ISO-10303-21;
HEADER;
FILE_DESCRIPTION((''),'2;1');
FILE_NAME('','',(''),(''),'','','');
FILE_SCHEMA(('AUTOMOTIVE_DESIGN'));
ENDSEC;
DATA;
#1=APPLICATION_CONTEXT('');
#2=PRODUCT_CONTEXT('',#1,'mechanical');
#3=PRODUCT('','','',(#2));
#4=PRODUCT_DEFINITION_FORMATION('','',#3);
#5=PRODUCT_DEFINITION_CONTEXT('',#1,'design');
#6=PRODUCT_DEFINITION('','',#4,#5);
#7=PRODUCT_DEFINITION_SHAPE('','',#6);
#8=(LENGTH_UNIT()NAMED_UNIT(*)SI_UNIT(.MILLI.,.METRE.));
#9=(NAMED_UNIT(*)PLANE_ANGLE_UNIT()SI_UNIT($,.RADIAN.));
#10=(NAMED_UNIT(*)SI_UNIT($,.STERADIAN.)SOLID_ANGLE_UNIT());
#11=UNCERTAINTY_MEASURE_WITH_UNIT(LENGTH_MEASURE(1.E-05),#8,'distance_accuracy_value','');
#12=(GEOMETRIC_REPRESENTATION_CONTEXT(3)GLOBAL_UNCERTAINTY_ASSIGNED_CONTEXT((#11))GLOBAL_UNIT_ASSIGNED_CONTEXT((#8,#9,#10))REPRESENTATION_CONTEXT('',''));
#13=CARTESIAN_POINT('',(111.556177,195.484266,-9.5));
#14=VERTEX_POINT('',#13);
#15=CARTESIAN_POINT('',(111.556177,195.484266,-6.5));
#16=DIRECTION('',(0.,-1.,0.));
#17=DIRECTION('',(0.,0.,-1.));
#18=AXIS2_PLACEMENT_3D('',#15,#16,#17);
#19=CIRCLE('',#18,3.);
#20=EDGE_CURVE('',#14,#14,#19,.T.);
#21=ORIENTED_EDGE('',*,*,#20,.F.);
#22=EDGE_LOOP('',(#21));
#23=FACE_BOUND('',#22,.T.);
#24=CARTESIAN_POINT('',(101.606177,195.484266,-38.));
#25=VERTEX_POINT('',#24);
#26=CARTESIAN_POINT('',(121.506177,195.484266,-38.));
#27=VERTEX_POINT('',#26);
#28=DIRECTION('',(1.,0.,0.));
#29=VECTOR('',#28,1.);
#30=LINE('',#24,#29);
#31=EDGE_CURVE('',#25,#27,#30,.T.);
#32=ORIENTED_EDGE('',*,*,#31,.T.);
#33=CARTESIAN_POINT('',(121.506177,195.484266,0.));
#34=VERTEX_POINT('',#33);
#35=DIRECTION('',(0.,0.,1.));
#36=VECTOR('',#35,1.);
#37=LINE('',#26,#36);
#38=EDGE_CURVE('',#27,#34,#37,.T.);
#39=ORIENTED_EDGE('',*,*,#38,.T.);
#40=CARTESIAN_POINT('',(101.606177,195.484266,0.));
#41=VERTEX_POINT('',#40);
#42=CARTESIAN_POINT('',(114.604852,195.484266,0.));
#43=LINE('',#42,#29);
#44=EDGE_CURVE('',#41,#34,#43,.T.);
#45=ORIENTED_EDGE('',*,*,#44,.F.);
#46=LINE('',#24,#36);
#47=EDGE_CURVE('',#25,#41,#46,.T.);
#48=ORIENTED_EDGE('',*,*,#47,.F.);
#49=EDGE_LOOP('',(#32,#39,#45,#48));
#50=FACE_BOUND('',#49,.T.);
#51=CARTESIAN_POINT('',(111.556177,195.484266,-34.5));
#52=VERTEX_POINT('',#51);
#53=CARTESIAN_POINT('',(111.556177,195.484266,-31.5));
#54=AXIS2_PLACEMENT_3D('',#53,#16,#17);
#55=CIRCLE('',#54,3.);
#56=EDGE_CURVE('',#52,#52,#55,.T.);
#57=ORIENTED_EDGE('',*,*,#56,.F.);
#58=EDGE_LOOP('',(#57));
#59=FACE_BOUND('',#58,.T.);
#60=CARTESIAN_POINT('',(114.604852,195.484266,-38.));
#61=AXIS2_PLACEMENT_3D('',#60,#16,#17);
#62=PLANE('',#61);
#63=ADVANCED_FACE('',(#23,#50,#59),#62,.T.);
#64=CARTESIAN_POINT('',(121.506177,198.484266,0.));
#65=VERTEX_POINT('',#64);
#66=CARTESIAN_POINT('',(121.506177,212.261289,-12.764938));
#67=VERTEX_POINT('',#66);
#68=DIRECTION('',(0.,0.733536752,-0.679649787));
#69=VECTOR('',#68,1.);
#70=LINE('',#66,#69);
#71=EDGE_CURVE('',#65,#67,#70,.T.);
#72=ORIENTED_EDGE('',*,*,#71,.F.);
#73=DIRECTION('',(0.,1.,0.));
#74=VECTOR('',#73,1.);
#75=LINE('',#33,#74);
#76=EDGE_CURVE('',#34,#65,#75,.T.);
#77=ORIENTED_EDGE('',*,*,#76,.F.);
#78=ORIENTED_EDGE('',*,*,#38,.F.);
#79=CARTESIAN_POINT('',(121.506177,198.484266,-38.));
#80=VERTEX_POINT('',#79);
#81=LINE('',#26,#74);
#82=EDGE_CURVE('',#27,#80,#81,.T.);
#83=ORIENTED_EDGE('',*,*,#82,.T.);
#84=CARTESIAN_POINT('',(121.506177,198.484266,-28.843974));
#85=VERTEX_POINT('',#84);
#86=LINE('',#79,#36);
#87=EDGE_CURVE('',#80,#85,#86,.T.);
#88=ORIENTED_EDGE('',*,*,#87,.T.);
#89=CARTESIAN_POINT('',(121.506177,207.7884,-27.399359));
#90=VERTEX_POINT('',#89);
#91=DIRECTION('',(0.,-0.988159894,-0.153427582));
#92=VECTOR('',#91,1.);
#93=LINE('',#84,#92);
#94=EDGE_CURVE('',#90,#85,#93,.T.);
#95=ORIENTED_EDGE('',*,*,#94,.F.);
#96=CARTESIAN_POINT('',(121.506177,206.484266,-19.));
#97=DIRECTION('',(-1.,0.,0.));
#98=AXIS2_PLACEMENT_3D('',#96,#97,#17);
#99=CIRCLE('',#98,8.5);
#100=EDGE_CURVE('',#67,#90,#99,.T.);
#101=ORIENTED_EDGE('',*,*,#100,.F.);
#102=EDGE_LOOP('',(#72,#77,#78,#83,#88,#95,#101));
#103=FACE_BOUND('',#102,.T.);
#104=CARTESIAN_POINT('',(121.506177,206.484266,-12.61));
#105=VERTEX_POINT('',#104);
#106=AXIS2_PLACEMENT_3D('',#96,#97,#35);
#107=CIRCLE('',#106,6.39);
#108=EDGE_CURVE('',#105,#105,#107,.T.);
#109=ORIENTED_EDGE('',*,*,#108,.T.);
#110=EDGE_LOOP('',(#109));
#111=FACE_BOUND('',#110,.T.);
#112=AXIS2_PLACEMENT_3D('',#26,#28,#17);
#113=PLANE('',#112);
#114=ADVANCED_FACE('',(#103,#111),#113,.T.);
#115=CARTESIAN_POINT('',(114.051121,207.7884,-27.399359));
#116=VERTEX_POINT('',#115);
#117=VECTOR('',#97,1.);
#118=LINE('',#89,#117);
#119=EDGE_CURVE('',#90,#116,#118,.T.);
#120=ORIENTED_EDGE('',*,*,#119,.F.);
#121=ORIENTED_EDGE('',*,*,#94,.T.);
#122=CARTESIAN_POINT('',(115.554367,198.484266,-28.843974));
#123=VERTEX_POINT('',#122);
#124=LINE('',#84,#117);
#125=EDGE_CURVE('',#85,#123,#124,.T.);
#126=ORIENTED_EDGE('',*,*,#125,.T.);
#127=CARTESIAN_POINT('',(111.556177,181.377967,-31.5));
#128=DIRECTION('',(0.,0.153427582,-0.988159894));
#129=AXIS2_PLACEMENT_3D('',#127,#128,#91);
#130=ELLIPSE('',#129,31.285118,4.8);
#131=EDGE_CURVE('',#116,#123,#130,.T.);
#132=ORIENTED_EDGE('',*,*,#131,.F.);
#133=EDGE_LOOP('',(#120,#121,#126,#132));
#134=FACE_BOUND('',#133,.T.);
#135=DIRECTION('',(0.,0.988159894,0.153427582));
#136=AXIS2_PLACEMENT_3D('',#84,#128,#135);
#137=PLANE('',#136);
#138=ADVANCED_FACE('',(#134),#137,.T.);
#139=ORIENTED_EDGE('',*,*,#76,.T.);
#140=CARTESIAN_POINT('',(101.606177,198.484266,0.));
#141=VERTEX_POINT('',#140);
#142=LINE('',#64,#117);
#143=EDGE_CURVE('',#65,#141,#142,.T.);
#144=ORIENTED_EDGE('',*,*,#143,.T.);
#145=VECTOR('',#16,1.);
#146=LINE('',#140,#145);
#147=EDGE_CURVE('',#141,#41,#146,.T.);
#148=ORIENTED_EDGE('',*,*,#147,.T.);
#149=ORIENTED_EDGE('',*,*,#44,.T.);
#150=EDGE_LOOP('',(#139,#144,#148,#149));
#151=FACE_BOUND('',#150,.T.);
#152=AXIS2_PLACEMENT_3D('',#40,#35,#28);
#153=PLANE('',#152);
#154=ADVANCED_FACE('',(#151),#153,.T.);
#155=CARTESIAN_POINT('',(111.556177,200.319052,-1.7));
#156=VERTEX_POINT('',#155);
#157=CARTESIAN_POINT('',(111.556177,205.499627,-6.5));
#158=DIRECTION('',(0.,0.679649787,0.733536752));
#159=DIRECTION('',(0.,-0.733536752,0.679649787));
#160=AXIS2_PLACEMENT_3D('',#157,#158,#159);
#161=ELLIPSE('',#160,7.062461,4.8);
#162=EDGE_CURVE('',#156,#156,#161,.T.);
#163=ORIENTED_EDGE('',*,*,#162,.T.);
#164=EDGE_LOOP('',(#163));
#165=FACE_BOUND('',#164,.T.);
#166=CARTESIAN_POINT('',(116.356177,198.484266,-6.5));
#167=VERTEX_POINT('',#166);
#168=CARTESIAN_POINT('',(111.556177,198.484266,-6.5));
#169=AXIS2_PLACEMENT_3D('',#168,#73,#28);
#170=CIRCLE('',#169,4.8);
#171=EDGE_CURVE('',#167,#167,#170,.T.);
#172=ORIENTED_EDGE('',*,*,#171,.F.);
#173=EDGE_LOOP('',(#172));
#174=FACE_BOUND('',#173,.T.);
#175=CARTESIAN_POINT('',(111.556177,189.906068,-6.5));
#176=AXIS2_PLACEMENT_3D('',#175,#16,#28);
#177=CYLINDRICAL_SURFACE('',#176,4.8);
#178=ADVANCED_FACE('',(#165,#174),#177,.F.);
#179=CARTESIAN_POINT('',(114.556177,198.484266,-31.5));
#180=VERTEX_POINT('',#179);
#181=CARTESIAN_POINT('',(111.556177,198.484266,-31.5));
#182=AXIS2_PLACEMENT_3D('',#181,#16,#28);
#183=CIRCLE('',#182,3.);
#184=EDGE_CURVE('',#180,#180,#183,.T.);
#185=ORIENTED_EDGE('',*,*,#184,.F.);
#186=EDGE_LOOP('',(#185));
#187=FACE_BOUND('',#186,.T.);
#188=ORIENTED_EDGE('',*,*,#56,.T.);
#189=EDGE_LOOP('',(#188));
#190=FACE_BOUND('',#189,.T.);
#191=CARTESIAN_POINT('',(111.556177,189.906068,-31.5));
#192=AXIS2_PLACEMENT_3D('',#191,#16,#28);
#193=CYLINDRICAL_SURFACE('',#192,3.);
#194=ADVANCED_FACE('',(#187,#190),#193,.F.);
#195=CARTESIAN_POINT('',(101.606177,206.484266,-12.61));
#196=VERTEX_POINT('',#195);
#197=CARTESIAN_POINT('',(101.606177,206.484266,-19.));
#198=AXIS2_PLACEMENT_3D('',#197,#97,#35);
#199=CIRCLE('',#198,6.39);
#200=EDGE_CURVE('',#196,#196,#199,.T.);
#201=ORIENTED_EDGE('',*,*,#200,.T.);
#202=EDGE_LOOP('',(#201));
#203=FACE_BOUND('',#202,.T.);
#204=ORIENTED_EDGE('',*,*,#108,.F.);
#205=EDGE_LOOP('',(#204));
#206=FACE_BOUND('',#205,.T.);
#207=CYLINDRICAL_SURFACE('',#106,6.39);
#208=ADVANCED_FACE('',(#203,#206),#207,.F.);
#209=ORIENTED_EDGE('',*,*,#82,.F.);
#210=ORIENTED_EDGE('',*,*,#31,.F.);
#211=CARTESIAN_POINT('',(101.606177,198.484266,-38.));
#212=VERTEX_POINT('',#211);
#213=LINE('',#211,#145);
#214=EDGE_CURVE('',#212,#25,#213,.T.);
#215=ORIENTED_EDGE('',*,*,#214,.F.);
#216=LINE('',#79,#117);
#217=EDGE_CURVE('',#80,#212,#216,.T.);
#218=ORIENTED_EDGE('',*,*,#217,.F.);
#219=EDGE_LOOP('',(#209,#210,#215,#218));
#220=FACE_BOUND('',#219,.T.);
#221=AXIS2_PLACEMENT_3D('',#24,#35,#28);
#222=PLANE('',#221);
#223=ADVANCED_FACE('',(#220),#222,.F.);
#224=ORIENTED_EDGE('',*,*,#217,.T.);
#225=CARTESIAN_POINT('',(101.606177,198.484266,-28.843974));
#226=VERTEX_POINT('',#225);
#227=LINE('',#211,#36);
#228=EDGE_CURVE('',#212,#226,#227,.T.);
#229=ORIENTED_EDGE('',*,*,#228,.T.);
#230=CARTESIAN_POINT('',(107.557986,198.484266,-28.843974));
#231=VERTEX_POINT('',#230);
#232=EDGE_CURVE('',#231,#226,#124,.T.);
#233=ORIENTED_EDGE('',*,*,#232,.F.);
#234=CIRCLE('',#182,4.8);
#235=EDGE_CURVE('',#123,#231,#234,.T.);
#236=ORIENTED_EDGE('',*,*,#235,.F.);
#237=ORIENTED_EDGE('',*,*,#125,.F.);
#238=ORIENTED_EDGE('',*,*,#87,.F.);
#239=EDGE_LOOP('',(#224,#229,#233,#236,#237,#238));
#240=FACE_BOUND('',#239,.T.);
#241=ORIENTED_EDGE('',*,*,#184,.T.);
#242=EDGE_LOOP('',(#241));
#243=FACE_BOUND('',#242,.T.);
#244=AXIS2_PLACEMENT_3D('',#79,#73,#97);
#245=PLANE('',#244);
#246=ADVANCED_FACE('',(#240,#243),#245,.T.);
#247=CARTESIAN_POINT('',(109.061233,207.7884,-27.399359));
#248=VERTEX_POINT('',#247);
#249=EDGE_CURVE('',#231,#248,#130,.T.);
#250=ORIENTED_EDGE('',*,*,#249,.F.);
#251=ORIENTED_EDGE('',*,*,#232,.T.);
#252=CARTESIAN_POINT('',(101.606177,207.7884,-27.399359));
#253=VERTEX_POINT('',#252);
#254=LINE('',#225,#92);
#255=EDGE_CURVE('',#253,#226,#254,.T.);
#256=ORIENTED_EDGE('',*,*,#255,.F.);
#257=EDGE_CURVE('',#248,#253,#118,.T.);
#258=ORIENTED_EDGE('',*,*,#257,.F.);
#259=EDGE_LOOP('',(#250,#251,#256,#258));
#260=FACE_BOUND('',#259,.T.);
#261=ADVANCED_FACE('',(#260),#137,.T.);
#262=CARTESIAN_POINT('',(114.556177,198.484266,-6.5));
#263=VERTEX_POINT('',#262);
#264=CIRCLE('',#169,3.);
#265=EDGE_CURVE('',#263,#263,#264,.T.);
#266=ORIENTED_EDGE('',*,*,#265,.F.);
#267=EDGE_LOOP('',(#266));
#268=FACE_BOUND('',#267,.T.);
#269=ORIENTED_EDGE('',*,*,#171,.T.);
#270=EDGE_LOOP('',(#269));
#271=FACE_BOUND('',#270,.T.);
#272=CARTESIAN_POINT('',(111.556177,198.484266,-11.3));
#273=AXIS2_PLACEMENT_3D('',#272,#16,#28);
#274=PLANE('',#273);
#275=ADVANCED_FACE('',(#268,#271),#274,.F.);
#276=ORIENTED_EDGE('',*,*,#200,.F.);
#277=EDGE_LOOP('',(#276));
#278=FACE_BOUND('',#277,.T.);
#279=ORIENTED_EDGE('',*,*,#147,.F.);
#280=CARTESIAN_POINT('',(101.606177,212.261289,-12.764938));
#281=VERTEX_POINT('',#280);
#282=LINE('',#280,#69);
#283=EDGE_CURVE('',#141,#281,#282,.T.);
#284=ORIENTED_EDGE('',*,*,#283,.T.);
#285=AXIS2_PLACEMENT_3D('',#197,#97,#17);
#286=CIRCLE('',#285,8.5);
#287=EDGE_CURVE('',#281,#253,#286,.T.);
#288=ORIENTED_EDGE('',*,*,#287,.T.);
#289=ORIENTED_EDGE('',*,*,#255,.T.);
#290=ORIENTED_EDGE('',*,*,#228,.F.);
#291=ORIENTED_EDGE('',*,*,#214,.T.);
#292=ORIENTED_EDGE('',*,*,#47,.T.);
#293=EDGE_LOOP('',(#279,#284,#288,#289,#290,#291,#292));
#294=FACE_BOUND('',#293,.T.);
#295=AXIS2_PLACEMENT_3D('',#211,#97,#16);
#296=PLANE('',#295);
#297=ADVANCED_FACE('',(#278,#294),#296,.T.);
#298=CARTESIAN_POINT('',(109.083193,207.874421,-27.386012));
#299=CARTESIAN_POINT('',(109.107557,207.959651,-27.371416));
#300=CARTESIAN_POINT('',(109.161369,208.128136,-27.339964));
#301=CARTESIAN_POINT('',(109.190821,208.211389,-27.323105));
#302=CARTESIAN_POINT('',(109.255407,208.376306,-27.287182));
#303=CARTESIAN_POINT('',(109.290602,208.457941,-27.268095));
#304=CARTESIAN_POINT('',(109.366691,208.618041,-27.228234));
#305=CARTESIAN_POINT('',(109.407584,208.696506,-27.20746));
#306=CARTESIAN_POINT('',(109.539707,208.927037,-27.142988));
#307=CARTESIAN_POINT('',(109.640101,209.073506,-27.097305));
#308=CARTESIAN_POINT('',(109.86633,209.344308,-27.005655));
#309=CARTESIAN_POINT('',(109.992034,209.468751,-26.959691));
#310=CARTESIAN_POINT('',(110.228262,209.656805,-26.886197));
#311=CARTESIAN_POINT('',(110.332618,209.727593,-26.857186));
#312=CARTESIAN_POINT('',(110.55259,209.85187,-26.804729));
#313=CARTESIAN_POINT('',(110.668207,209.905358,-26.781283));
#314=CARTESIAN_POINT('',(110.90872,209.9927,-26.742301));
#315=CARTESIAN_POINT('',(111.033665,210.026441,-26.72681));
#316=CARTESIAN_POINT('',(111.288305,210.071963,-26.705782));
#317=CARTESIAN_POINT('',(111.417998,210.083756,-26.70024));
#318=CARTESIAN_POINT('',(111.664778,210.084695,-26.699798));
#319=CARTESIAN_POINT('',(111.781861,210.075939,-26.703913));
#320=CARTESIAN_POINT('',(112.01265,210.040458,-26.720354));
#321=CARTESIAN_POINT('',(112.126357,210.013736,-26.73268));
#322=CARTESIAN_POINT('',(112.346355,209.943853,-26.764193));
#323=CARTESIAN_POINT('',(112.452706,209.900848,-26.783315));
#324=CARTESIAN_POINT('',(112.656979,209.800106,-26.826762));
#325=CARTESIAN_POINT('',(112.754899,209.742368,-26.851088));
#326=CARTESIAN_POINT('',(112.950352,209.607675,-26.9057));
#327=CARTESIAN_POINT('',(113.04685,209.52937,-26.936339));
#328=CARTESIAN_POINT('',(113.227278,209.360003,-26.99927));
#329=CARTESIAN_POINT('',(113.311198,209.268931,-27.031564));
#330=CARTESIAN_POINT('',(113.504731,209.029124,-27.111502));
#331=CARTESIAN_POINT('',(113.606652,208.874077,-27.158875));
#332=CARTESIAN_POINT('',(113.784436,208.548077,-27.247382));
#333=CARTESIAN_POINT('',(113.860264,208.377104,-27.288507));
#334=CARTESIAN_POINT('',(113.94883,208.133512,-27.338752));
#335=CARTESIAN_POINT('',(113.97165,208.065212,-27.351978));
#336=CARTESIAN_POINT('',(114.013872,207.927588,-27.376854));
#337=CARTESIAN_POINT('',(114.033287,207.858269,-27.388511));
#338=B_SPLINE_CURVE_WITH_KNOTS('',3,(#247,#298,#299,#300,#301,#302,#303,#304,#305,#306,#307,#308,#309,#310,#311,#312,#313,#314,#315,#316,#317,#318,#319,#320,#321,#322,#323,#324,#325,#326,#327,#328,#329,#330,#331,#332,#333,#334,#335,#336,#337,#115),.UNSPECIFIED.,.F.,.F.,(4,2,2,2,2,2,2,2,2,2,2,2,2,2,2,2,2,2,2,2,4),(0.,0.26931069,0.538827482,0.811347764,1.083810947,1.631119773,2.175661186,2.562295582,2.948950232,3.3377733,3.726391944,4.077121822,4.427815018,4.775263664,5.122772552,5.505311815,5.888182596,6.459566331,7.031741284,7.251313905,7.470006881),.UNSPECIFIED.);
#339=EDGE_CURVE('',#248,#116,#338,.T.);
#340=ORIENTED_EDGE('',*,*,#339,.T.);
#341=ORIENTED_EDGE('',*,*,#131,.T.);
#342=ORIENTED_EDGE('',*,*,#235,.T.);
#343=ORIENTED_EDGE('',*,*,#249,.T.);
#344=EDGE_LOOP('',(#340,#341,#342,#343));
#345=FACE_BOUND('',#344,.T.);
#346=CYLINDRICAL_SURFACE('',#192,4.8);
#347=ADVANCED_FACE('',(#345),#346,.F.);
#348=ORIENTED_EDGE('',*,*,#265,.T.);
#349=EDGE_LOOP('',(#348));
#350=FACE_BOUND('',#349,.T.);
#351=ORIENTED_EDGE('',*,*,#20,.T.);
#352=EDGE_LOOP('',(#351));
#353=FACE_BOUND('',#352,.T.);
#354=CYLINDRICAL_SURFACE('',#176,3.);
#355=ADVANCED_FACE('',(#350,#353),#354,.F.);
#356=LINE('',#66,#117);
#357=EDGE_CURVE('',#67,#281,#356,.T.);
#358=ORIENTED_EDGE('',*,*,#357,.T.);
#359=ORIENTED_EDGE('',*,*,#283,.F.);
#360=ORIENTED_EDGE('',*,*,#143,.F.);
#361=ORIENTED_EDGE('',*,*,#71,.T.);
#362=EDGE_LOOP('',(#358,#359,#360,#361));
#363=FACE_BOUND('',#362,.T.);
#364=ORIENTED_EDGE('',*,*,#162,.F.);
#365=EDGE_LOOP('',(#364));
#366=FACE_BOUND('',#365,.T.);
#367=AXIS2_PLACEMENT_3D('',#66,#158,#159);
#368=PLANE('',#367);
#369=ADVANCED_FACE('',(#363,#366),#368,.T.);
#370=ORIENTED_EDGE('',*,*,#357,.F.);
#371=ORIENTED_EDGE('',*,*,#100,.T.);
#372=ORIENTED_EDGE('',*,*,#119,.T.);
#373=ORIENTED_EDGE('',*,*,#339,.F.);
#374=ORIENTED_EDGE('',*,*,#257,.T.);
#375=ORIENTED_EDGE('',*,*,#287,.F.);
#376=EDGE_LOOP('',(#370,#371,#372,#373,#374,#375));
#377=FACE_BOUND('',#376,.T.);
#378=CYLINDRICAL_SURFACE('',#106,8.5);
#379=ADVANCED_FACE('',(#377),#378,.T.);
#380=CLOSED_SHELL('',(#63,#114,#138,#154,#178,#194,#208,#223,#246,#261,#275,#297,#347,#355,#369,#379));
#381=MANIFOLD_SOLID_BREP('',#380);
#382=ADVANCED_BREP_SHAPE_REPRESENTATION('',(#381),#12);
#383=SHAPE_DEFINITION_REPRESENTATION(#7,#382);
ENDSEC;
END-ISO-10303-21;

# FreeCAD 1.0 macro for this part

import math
import FreeCAD as App
import Part
import Sketcher
from FreeCAD import Vector
Q = App.Units.Quantity

doc = App.newDocument("Part")
body = doc.addObject("PartDesign::Body", "Body")

# Sketch on XY plane
sketch1 = body.newObject("Sketcher::SketchObject", "Sketch")
sketch1.AttachmentSupport = (doc.getObject("XY_Plane"), [""])
sketch1.MapMode = "FlatFace"
sketch1.addGeometry([
    Part.LineSegment(Vector(101.6, 195.5, 0), Vector(121.5, 195.5, 0)),
    Part.LineSegment(Vector(121.5, 195.5, 0), Vector(121.5, 198.5, 0)),
    Part.LineSegment(Vector(121.5, 198.5, 0), Vector(101.6, 198.5, 0)),
    Part.LineSegment(Vector(101.6, 198.5, 0), Vector(101.6, 195.5, 0)),
], False)
sketch1.addConstraint([
    Sketcher.Constraint("Coincident", 0, 2, 1, 1),
    Sketcher.Constraint("Coincident", 1, 2, 2, 1),
    Sketcher.Constraint("Coincident", 2, 2, 3, 1),
    Sketcher.Constraint("Coincident", 3, 2, 0, 1),
    Sketcher.Constraint("Horizontal", 0),
    Sketcher.Constraint("Vertical", 1),
    Sketcher.Constraint("Horizontal", 2),
    Sketcher.Constraint("Vertical", 3),
    Sketcher.Constraint("DistanceY", 1, 1, 1, 2, Q("3 mm")),
    Sketcher.Constraint("DistanceX", 0, 1, 0, 2, Q("19.9 mm")),
    Sketcher.Constraint("DistanceX", -1, 1, 0, 2, Q("121.506177 mm")),
    Sketcher.Constraint("DistanceY", -1, 1, 0, 2, Q("195.484266 mm")),
])
pad1 = body.newObject("PartDesign::Pad", "Pad")
pad1.Profile = sketch1
pad1.Length = 38
pad1.Reversed = True

# Sketch on YZ plane
sketch2 = body.newObject("Sketcher::SketchObject", "Sketch001")
sketch2.AttachmentSupport = (doc.getObject("YZ_Plane"), [""])
sketch2.MapMode = "FlatFace"
sketch2.AttachmentOffset = App.Placement(Vector(0, 0, 101.606177), App.Rotation())
sketch2.addGeometry([
    Part.LineSegment(Vector(208, -27, 0), Vector(198, -29, 0)),  # 0
    Part.LineSegment(Vector(198, -29, 0), Vector(198, 0, 0)),  # 1
    Part.LineSegment(Vector(198, 0, 0), Vector(212, -13, 0)),  # 2
    Part.ArcOfCircle(Part.Circle(Vector(206, -19, 0), Vector(0, 0, 1), 8), math.radians(-81), math.radians(47)),  # 3
    Part.Circle(Vector(206, -19, 0), Vector(0, 0, 1), 6),  # 4
], False)
sketch2.addConstraint([
    Sketcher.Constraint("Coincident", 0, 2, 1, 1),
    Sketcher.Constraint("Coincident", 1, 2, 2, 1),
    Sketcher.Constraint("Tangent", 2, 2, 3, 2),
    Sketcher.Constraint("Tangent", 3, 1, 0, 1),
    Sketcher.Constraint("Vertical", 1),
    Sketcher.Constraint("Coincident", 4, 3, 3, 3),
    Sketcher.Constraint("PointOnObject", 1, 2, -1),
    Sketcher.Constraint("Radius", 3, Q("8.5 mm")),
    Sketcher.Constraint("Diameter", 4, Q("12.78 mm")),
    Sketcher.Constraint("DistanceY", 3, 3, -1, 1, Q("19 mm")),
    Sketcher.Constraint("DistanceX", 0, 2, 3, 3, Q("8 mm")),
    Sketcher.Constraint("DistanceX", -1, 1, 3, 1, Q("207.7884 mm")),
    Sketcher.Constraint("DistanceY", 1, 1, 1, 2, Q("28.843974 mm")),
])
pad2 = body.newObject("PartDesign::Pad", "Pad001")
pad2.Profile = sketch2
pad2.Length = 19.9

# Sketch on YZ plane
sketch3 = body.newObject("Sketcher::SketchObject", "Sketch002")
sketch3.AttachmentSupport = (doc.getObject("YZ_Plane"), [""])
sketch3.MapMode = "FlatFace"
sketch3.AttachmentOffset = App.Placement(Vector(0, 0, 111.556177), App.Rotation())
sketch3.addGeometry([
    Part.LineSegment(Vector(198.5, -26.7, 0), Vector(211.7, -26.7, 0)),  # 0
    Part.LineSegment(Vector(211.7, -26.7, 0), Vector(211.7, -31.5, 0)),  # 1
    Part.LineSegment(Vector(211.7, -31.5, 0), Vector(189.9, -31.5, 0)),  # 2
    Part.LineSegment(Vector(189.9, -31.5, 0), Vector(189.9, -28.5, 0)),  # 3
    Part.LineSegment(Vector(189.9, -28.5, 0), Vector(198.5, -28.5, 0)),  # 4
    Part.LineSegment(Vector(198.5, -28.5, 0), Vector(198.5, -26.7, 0)),  # 5
], False)
sketch3.addGeometry(Part.LineSegment(Vector(189.9, -31.5, 0), Vector(211.7, -31.5, 0)), True)  # axis
sketch3.addConstraint([
    Sketcher.Constraint("Coincident", 0, 2, 1, 1),
    Sketcher.Constraint("Coincident", 1, 2, 2, 1),
    Sketcher.Constraint("Coincident", 2, 2, 3, 1),
    Sketcher.Constraint("Coincident", 3, 2, 4, 1),
    Sketcher.Constraint("Coincident", 4, 2, 5, 1),
    Sketcher.Constraint("Coincident", 5, 2, 0, 1),
    Sketcher.Constraint("Horizontal", 0),
    Sketcher.Constraint("Vertical", 1),
    Sketcher.Constraint("Horizontal", 2),
    Sketcher.Constraint("Vertical", 3),
    Sketcher.Constraint("Horizontal", 4),
    Sketcher.Constraint("Vertical", 5),
    Sketcher.Constraint("Horizontal", 6),
    Sketcher.Constraint("Coincident", 6, 1, 2, 2),
    Sketcher.Constraint("Vertical", 0, 2, 6, 2),
    Sketcher.Constraint("DistanceY", 3, 1, 3, 2, Q("3 mm")),
    Sketcher.Constraint("DistanceY", 1, 2, 1, 1, Q("4.8 mm")),
    Sketcher.Constraint("DistanceY", 0, 2, -1, 1, Q("26.7 mm")),
    Sketcher.Constraint("DistanceX", 0, 1, 0, 2, Q("13.185751 mm")),
    Sketcher.Constraint("DistanceX", 2, 2, 2, 1, Q("21.763949 mm")),
    Sketcher.Constraint("DistanceX", -1, 1, 2, 2, Q("189.906068 mm")),
])
groove = body.newObject("PartDesign::Groove", "Groove")
groove.Profile = sketch3
groove.ReferenceAxis = (sketch3, ["Axis0"])
groove.Angle = 360
doc.recompute()

datumplane = body.newObject("PartDesign::Plane", "DatumPlane")
datumplane.AttachmentSupport = (doc.getObject("XY_Plane"), [""])
datumplane.MapMode = "FlatFace"
datumplane.AttachmentOffset = App.Placement(Vector(0, 0, -19), App.Rotation())
mirrored = body.newObject("PartDesign::Mirrored", "Mirrored")
mirrored.Originals = [groove]
mirrored.MirrorPlane = (datumplane, [""])
body.Tip = mirrored

doc.recompute()
